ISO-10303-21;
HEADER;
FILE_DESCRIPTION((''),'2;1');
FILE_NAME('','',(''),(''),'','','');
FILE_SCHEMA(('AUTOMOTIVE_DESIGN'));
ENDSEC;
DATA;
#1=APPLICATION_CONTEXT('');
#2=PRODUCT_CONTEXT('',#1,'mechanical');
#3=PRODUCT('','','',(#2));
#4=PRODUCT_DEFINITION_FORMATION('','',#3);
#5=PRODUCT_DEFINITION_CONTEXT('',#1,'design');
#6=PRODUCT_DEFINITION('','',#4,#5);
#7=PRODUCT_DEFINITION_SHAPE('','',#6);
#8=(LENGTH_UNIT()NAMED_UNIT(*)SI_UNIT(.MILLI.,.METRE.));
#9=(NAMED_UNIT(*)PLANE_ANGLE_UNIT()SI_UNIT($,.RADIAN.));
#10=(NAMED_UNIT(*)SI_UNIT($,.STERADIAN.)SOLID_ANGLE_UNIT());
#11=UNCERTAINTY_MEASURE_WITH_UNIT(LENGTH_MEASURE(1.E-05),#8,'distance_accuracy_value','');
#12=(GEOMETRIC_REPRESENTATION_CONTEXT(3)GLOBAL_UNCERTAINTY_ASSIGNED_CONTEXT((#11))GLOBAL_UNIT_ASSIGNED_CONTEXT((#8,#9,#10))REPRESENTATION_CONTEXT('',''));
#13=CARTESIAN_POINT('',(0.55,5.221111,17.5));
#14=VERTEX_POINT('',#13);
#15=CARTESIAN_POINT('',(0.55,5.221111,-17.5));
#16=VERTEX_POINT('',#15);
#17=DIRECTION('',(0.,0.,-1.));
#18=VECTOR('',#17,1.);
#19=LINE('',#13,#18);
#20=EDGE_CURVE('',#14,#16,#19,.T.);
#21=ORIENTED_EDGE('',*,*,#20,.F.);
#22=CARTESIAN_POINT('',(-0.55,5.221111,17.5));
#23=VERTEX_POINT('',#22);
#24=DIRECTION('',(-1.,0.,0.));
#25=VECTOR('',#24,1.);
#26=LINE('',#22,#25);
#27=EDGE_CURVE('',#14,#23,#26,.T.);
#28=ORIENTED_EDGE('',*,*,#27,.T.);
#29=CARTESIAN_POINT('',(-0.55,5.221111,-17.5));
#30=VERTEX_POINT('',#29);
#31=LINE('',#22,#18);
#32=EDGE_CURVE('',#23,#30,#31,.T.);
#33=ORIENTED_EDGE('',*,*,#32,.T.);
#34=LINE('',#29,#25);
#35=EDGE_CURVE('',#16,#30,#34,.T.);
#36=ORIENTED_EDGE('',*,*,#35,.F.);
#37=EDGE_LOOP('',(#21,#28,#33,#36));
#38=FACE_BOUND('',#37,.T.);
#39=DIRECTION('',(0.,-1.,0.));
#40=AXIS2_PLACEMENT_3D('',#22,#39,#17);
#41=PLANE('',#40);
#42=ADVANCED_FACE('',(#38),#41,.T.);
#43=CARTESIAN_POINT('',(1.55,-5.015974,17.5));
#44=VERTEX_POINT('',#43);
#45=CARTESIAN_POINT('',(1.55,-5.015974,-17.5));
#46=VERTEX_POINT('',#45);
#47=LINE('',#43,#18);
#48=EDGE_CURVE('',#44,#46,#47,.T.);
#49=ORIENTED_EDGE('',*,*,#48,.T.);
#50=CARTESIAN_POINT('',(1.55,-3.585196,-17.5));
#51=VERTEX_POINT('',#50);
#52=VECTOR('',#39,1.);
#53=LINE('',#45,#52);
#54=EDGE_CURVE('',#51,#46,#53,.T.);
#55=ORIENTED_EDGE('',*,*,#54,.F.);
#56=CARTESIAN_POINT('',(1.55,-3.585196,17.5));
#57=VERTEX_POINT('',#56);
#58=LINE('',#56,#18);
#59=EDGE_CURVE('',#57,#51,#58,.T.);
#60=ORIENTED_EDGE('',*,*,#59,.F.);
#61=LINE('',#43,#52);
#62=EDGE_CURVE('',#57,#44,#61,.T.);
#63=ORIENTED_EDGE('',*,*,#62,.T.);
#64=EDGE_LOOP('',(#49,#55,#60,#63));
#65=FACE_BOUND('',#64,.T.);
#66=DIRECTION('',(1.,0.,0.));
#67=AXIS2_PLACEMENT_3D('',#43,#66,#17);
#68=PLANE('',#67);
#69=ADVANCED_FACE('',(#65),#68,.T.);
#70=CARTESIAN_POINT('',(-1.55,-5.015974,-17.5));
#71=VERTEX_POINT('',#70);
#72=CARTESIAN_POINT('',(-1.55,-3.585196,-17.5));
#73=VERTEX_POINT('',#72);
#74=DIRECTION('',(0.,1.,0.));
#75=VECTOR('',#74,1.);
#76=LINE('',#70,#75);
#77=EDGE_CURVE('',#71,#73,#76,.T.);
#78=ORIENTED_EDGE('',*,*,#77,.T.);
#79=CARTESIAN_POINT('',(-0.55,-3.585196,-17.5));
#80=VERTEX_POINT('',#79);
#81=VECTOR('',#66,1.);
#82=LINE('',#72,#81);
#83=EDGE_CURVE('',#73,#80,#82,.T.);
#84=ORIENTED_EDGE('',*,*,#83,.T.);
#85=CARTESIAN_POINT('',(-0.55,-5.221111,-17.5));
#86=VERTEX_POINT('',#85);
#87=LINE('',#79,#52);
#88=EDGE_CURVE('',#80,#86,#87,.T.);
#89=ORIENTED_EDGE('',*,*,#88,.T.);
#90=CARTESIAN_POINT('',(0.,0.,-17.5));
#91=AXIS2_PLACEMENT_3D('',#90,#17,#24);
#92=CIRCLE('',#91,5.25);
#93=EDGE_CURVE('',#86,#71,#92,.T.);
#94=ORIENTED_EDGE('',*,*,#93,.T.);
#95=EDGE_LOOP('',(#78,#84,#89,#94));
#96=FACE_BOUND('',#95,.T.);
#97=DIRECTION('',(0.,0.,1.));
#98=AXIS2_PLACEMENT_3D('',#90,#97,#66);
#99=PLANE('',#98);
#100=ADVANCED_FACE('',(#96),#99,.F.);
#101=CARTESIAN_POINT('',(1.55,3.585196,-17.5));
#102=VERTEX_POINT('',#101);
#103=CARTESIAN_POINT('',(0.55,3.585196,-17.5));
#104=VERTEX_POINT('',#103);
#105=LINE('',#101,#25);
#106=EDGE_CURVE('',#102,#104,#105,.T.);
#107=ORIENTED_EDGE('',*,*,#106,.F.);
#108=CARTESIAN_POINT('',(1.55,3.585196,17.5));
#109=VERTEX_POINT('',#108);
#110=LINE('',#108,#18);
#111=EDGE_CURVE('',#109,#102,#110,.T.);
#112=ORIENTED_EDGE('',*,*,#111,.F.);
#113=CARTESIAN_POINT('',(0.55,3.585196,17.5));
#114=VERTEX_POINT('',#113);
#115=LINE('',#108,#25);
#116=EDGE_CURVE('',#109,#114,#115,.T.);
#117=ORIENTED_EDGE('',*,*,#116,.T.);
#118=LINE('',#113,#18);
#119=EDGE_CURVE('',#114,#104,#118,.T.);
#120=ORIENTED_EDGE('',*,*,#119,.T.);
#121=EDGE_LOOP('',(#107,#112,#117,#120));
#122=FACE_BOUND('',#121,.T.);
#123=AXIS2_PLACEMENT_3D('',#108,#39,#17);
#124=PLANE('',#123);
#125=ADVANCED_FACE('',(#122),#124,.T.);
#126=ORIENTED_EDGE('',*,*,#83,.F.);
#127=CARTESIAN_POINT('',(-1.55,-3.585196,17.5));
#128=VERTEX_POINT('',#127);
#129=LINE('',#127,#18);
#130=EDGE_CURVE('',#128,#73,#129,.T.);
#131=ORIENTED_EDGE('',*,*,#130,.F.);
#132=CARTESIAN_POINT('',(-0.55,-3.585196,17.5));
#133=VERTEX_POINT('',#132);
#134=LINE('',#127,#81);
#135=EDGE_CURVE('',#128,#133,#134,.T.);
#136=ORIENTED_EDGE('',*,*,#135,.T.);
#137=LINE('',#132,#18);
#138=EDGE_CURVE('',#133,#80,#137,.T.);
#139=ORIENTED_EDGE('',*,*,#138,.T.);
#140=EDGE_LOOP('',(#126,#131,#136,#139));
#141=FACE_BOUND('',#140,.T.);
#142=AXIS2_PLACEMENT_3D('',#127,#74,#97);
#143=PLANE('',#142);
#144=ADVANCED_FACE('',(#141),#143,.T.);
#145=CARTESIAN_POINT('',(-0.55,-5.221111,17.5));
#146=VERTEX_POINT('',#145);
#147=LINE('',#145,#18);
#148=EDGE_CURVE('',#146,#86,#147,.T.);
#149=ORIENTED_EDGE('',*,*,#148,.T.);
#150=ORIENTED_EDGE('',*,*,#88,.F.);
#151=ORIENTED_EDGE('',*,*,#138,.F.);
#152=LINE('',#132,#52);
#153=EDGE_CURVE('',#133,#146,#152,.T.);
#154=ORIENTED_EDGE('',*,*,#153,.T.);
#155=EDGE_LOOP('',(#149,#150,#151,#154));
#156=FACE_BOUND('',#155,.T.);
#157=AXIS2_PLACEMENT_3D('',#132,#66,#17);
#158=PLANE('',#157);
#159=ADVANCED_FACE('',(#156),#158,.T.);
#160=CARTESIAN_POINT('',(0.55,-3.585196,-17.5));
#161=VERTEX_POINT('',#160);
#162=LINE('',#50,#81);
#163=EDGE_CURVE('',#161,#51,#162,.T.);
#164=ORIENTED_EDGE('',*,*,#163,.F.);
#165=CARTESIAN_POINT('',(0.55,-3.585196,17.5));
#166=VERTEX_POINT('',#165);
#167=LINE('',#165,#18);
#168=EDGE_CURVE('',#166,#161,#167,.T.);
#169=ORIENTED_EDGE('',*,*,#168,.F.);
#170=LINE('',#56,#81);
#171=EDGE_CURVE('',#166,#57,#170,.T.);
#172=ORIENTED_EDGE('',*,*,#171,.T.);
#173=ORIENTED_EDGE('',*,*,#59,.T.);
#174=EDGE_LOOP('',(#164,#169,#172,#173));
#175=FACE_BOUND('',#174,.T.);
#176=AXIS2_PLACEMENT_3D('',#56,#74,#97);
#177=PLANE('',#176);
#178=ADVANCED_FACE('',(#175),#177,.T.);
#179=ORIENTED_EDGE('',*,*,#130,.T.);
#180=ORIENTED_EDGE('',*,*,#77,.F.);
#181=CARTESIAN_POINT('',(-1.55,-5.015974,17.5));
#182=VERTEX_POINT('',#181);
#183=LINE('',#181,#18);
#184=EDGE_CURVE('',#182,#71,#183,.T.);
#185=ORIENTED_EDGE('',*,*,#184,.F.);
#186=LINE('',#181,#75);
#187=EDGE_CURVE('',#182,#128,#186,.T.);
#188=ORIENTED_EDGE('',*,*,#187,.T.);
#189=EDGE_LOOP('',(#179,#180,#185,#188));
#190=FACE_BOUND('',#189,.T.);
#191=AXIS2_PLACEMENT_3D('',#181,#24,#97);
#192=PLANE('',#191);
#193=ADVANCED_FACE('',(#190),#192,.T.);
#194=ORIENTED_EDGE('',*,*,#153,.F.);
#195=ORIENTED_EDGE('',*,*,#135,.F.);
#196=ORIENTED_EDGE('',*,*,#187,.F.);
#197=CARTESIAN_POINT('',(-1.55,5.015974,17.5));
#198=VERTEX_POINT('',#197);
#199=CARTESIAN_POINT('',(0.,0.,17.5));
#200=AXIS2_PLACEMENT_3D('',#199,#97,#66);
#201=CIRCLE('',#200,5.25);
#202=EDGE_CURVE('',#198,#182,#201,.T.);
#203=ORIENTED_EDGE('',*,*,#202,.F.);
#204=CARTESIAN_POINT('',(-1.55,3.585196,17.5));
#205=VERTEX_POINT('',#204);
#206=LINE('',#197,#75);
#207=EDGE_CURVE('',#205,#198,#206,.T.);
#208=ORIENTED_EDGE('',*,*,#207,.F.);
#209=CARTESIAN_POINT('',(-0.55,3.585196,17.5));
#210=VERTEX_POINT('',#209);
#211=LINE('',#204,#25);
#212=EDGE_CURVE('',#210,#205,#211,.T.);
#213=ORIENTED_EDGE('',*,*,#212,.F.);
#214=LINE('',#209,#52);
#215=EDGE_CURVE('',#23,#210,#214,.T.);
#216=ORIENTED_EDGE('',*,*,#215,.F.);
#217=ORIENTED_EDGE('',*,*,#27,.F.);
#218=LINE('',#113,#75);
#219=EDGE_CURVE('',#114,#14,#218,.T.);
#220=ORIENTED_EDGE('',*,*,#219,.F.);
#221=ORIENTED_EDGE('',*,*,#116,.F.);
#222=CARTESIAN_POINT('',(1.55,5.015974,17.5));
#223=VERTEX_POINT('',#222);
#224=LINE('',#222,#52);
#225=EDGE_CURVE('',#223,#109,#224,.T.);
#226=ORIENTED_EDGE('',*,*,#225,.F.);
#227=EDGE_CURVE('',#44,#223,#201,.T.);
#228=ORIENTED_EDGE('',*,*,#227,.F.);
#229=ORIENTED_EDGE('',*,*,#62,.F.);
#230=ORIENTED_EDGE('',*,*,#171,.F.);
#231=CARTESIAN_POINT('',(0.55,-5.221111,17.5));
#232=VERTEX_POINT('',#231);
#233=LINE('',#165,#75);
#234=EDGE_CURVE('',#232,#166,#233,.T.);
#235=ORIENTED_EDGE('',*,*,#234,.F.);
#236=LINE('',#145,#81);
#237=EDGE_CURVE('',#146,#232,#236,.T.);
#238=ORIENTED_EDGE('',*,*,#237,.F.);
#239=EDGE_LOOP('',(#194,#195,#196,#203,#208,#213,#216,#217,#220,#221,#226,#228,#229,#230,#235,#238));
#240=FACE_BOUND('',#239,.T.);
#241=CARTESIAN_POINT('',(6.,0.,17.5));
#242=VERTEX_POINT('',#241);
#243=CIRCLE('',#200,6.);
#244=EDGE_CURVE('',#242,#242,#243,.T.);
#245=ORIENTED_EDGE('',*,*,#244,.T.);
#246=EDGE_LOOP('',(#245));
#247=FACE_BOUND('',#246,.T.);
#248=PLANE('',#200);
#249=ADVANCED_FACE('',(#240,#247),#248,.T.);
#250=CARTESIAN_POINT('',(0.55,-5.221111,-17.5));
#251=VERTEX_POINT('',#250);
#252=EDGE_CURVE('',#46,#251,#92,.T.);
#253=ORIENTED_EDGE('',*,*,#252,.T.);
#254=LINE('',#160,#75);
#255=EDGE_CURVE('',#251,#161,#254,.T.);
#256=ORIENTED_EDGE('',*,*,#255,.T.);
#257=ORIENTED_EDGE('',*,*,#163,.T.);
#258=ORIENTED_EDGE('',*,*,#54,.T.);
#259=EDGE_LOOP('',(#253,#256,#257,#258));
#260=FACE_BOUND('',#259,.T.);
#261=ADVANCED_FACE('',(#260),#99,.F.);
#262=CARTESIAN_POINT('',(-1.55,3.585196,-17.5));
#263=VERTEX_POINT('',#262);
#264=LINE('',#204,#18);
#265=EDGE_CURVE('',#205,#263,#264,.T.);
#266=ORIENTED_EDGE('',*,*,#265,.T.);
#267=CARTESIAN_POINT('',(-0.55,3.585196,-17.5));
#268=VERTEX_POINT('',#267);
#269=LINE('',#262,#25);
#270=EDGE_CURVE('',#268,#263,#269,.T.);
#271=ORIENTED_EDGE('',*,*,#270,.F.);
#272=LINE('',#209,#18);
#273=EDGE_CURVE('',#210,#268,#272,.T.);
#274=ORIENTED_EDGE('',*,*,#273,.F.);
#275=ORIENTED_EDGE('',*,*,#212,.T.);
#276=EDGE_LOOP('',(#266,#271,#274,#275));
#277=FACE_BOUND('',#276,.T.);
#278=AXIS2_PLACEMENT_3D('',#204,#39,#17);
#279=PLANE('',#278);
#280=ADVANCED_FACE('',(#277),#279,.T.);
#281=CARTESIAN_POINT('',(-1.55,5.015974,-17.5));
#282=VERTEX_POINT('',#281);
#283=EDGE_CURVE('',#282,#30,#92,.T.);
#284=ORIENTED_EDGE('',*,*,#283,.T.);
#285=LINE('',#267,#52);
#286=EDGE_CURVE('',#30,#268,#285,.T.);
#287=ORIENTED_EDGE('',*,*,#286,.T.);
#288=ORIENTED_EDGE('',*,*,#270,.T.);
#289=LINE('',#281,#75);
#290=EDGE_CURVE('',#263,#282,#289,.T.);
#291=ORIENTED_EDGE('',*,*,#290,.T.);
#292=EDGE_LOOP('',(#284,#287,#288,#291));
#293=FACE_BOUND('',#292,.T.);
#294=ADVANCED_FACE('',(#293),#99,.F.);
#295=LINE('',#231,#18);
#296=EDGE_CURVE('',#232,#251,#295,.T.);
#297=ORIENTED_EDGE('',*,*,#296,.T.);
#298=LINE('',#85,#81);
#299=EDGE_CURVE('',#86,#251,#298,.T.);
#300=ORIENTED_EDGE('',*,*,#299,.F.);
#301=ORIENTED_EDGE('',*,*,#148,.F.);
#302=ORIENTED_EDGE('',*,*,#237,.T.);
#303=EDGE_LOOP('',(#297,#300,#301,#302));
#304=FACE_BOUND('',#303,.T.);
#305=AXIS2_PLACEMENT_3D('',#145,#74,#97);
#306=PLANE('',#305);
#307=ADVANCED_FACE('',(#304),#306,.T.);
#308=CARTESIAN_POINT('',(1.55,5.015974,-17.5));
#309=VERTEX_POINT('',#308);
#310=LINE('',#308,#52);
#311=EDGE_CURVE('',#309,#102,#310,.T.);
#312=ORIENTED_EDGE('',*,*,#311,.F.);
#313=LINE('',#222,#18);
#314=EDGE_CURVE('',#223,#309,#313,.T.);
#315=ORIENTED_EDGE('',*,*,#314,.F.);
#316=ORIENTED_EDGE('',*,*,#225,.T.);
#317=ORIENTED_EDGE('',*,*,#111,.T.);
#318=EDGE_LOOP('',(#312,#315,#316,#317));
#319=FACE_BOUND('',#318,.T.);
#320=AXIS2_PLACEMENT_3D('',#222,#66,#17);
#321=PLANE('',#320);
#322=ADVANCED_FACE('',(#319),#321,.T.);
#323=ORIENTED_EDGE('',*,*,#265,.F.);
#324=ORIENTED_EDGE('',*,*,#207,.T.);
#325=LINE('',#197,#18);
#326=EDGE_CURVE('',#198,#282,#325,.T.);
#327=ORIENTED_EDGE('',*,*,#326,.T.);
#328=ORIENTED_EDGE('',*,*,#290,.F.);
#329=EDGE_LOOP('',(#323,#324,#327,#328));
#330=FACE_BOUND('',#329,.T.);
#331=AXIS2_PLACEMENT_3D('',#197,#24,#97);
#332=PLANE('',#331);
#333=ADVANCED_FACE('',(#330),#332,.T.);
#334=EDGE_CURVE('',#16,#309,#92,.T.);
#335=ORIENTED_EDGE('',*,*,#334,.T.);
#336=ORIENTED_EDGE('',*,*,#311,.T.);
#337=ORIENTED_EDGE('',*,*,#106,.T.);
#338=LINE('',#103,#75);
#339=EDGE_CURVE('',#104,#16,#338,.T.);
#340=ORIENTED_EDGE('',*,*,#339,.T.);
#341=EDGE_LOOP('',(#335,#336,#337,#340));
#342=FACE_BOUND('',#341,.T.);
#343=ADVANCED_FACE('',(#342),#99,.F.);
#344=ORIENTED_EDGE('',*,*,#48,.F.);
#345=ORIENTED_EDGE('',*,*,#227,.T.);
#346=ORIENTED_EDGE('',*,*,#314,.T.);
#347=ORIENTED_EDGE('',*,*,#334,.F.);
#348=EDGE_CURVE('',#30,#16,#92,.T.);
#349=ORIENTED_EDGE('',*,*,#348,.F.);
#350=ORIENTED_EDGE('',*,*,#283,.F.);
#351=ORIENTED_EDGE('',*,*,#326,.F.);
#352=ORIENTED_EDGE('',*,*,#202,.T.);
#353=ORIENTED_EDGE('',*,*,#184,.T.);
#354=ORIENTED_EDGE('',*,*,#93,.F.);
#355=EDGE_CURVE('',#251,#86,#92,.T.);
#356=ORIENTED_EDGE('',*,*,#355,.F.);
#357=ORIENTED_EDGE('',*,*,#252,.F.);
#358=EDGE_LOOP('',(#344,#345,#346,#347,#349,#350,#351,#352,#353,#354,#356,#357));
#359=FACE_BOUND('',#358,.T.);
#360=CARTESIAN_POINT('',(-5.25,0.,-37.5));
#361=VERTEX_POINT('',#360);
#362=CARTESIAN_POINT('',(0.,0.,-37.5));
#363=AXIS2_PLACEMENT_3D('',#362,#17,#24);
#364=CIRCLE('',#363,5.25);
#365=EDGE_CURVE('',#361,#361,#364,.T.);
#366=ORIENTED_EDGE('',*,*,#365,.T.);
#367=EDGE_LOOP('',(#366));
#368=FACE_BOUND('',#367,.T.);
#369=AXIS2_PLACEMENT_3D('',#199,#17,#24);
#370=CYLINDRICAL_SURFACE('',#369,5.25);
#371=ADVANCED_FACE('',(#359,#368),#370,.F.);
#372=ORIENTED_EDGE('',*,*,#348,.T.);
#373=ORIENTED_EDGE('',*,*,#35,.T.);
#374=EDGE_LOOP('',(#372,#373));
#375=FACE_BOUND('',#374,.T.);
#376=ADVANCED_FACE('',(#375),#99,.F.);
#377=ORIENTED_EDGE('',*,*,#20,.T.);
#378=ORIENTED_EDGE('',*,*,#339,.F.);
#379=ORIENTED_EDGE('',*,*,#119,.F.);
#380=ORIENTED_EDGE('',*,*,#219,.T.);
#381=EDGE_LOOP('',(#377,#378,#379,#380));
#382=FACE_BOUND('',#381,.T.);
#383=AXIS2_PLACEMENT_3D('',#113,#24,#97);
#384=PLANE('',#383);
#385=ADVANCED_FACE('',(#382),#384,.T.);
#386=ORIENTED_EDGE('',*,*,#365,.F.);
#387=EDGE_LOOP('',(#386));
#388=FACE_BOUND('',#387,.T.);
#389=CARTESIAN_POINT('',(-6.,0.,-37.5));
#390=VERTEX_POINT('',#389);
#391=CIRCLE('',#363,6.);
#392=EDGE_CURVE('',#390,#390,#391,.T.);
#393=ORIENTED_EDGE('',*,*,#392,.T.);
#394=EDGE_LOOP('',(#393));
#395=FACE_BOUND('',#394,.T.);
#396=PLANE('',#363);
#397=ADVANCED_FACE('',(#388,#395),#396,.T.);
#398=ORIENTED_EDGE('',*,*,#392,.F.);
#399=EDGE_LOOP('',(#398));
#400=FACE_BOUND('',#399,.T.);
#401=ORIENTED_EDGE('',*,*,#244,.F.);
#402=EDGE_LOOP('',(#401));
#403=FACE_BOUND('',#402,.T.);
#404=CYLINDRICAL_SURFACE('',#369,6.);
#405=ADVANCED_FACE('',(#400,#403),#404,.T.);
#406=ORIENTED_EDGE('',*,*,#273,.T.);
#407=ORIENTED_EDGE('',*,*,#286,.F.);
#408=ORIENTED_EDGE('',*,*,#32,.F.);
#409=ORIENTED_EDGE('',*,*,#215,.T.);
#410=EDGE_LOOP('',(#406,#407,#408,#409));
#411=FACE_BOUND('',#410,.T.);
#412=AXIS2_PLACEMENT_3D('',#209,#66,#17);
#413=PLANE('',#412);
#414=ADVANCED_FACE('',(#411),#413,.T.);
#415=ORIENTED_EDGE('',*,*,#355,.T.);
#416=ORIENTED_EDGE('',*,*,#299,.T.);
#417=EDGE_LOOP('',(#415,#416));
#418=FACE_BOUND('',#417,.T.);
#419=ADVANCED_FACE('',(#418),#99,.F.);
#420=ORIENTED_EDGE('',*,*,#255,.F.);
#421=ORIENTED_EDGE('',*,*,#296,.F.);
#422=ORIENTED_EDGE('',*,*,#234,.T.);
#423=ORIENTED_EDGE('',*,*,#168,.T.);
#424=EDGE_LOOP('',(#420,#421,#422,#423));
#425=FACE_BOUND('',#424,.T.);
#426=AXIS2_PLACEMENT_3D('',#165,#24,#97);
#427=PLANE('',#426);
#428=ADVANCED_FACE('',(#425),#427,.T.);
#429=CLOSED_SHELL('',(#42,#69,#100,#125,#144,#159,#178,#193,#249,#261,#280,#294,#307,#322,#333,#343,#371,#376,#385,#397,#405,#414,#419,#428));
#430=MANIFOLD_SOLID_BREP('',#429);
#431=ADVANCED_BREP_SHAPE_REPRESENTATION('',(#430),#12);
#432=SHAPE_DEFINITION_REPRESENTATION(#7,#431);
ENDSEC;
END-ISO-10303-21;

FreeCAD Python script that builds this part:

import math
import FreeCAD as App
import Part
import Sketcher

V = App.Vector
Q = App.Units.Quantity

doc = App.newDocument("Part")
body = doc.addObject("PartDesign::Body", "Body")

# Sketch on XY plane
sketch1 = body.newObject("Sketcher::SketchObject", "Sketch")
sketch1.AttachmentSupport = (doc.getObject("XY_Plane"), [""])
sketch1.MapMode = "FlatFace"
sketch1.addGeometry(Part.Circle(V(0, 0, 0), V(0, 0, 1), 6), False)
sketch1.addGeometry(Part.ArcOfCircle(Part.Circle(V(0, 0, 0), V(0, 0, 1), 5.25), math.radians(-72.828185), math.radians(72.828185)), False)
sketch1.addGeometry(Part.LineSegment(V(1.55, -5.015974, 0), V(1.55, -3.585196, 0)), False)
sketch1.addGeometry(Part.LineSegment(V(1.55, -3.585196, 0), V(0.55, -3.585196, 0)), False)
sketch1.addGeometry(Part.LineSegment(V(0.55, -3.585196, 0), V(0.55, -5.221111, 0)), False)
sketch1.addGeometry(Part.LineSegment(V(0.55, -5.221111, 0), V(-0.55, -5.221111, 0)), False)
sketch1.addGeometry(Part.LineSegment(V(-0.55, -5.221111, 0), V(-0.55, -3.585196, 0)), False)
sketch1.addGeometry(Part.LineSegment(V(-0.55, -3.585196, 0), V(-1.55, -3.585196, 0)), False)
sketch1.addGeometry(Part.LineSegment(V(-1.55, -3.585196, 0), V(-1.55, -5.015974, 0)), False)
sketch1.addGeometry(Part.ArcOfCircle(Part.Circle(V(0, 0, 0), V(0, 0, 1), 5.25), math.radians(107.171815), math.radians(252.828185)), False)
sketch1.addGeometry(Part.LineSegment(V(-1.55, 5.015974, 0), V(-1.55, 3.585196, 0)), False)
sketch1.addGeometry(Part.LineSegment(V(-1.55, 3.585196, 0), V(-0.55, 3.585196, 0)), False)
sketch1.addGeometry(Part.LineSegment(V(-0.55, 3.585196, 0), V(-0.55, 5.221111, 0)), False)
sketch1.addGeometry(Part.LineSegment(V(-0.55, 5.221111, 0), V(0.55, 5.221111, 0)), False)
sketch1.addGeometry(Part.LineSegment(V(0.55, 5.221111, 0), V(0.55, 3.585196, 0)), False)
sketch1.addGeometry(Part.LineSegment(V(0.55, 3.585196, 0), V(1.55, 3.585196, 0)), False)
sketch1.addGeometry(Part.LineSegment(V(1.55, 3.585196, 0), V(1.55, 5.015974, 0)), False)
sketch1.addConstraint(Sketcher.Constraint("Coincident", 1, 1, 2, 1))
sketch1.addConstraint(Sketcher.Constraint("Coincident", 2, 2, 3, 1))
sketch1.addConstraint(Sketcher.Constraint("Coincident", 3, 2, 4, 1))
sketch1.addConstraint(Sketcher.Constraint("Coincident", 4, 2, 5, 1))
sketch1.addConstraint(Sketcher.Constraint("Coincident", 5, 2, 6, 1))
sketch1.addConstraint(Sketcher.Constraint("Coincident", 6, 2, 7, 1))
sketch1.addConstraint(Sketcher.Constraint("Coincident", 7, 2, 8, 1))
sketch1.addConstraint(Sketcher.Constraint("Coincident", 8, 2, 9, 2))
sketch1.addConstraint(Sketcher.Constraint("Coincident", 9, 1, 10, 1))
sketch1.addConstraint(Sketcher.Constraint("Coincident", 10, 2, 11, 1))
sketch1.addConstraint(Sketcher.Constraint("Coincident", 11, 2, 12, 1))
sketch1.addConstraint(Sketcher.Constraint("Coincident", 12, 2, 13, 1))
sketch1.addConstraint(Sketcher.Constraint("Coincident", 13, 2, 14, 1))
sketch1.addConstraint(Sketcher.Constraint("Coincident", 14, 2, 15, 1))
sketch1.addConstraint(Sketcher.Constraint("Coincident", 15, 2, 16, 1))
sketch1.addConstraint(Sketcher.Constraint("Coincident", 16, 2, 1, 2))
sketch1.addConstraint(Sketcher.Constraint("Vertical", 2))
sketch1.addConstraint(Sketcher.Constraint("Horizontal", 3))
sketch1.addConstraint(Sketcher.Constraint("Vertical", 4))
sketch1.addConstraint(Sketcher.Constraint("Horizontal", 5))
sketch1.addConstraint(Sketcher.Constraint("Vertical", 6))
sketch1.addConstraint(Sketcher.Constraint("Horizontal", 7))
sketch1.addConstraint(Sketcher.Constraint("Vertical", 8))
sketch1.addConstraint(Sketcher.Constraint("Vertical", 10))
sketch1.addConstraint(Sketcher.Constraint("Horizontal", 11))
sketch1.addConstraint(Sketcher.Constraint("Vertical", 12))
sketch1.addConstraint(Sketcher.Constraint("Horizontal", 13))
sketch1.addConstraint(Sketcher.Constraint("Vertical", 14))
sketch1.addConstraint(Sketcher.Constraint("Horizontal", 15))
sketch1.addConstraint(Sketcher.Constraint("Vertical", 16))
sketch1.addConstraint(Sketcher.Constraint("Coincident", 0, 3, -1, 1))
sketch1.addConstraint(Sketcher.Constraint("Coincident", 1, 3, -1, 1))
sketch1.addConstraint(Sketcher.Constraint("Coincident", 9, 3, -1, 1))
sketch1.addConstraint(Sketcher.Constraint("Equal", 1, 9))
sketch1.addConstraint(Sketcher.Constraint("Symmetric", 2, 2, 10, 2, -1, 1))
sketch1.addConstraint(Sketcher.Constraint("Symmetric", 4, 2, 12, 2, -1, 1))
sketch1.addConstraint(Sketcher.Constraint("Symmetric", 6, 2, 14, 2, -1, 1))
sketch1.addConstraint(Sketcher.Constraint("Symmetric", 3, 2, 6, 2, -2))
sketch1.addConstraint(Sketcher.Constraint("Horizontal", 1, 1, 8, 2))
sketch1.addConstraint(Sketcher.Constraint("Horizontal", 9, 1, 16, 2))
sketch1.addConstraint(Sketcher.Constraint("Diameter", 0, Q("12 mm")))
sketch1.addConstraint(Sketcher.Constraint("DistanceX", 3, 2, 3, 1, Q("1 mm")))
sketch1.addConstraint(Sketcher.Constraint("Radius", 1, Q("5.25 mm")))
sketch1.addConstraint(Sketcher.Constraint("DistanceX", 5, 2, 5, 1, Q("1.1 mm")))
sketch1.addConstraint(Sketcher.Constraint("DistanceY", 2, 1, 2, 2, Q("1.430779 mm")))
sketch1.addConstraint(Sketcher.Constraint("DistanceY", 4, 2, 4, 1, Q("1.635915 mm")))
pad1 = body.newObject("PartDesign::Pad", "Pad")
pad1.Profile = sketch1
pad1.Length = 35
pad1.Midplane = True

# Sketch on XY plane
sketch2 = body.newObject("Sketcher::SketchObject", "Sketch001")
sketch2.AttachmentSupport = (doc.getObject("XY_Plane"), [""])
sketch2.MapMode = "FlatFace"
sketch2.AttachmentOffset = App.Placement(V(0, 0, -17.5), App.Rotation())
sketch2.addGeometry(Part.Circle(V(0, 0, 0), V(0, 0, 1), 6), False)
sketch2.addGeometry(Part.Circle(V(0, 0, 0), V(0, 0, 1), 5.25), False)
sketch2.addConstraint(Sketcher.Constraint("Coincident", 0, 3, -1, 1))
sketch2.addConstraint(Sketcher.Constraint("Coincident", 1, 3, -1, 1))
sketch2.addConstraint(Sketcher.Constraint("Diameter", 0, Q("12 mm")))
sketch2.addConstraint(Sketcher.Constraint("Diameter", 1, Q("10.5 mm")))
pad2 = body.newObject("PartDesign::Pad", "Pad001")
pad2.Profile = sketch2
pad2.Length = 20
pad2.Reversed = True

doc.recompute()
